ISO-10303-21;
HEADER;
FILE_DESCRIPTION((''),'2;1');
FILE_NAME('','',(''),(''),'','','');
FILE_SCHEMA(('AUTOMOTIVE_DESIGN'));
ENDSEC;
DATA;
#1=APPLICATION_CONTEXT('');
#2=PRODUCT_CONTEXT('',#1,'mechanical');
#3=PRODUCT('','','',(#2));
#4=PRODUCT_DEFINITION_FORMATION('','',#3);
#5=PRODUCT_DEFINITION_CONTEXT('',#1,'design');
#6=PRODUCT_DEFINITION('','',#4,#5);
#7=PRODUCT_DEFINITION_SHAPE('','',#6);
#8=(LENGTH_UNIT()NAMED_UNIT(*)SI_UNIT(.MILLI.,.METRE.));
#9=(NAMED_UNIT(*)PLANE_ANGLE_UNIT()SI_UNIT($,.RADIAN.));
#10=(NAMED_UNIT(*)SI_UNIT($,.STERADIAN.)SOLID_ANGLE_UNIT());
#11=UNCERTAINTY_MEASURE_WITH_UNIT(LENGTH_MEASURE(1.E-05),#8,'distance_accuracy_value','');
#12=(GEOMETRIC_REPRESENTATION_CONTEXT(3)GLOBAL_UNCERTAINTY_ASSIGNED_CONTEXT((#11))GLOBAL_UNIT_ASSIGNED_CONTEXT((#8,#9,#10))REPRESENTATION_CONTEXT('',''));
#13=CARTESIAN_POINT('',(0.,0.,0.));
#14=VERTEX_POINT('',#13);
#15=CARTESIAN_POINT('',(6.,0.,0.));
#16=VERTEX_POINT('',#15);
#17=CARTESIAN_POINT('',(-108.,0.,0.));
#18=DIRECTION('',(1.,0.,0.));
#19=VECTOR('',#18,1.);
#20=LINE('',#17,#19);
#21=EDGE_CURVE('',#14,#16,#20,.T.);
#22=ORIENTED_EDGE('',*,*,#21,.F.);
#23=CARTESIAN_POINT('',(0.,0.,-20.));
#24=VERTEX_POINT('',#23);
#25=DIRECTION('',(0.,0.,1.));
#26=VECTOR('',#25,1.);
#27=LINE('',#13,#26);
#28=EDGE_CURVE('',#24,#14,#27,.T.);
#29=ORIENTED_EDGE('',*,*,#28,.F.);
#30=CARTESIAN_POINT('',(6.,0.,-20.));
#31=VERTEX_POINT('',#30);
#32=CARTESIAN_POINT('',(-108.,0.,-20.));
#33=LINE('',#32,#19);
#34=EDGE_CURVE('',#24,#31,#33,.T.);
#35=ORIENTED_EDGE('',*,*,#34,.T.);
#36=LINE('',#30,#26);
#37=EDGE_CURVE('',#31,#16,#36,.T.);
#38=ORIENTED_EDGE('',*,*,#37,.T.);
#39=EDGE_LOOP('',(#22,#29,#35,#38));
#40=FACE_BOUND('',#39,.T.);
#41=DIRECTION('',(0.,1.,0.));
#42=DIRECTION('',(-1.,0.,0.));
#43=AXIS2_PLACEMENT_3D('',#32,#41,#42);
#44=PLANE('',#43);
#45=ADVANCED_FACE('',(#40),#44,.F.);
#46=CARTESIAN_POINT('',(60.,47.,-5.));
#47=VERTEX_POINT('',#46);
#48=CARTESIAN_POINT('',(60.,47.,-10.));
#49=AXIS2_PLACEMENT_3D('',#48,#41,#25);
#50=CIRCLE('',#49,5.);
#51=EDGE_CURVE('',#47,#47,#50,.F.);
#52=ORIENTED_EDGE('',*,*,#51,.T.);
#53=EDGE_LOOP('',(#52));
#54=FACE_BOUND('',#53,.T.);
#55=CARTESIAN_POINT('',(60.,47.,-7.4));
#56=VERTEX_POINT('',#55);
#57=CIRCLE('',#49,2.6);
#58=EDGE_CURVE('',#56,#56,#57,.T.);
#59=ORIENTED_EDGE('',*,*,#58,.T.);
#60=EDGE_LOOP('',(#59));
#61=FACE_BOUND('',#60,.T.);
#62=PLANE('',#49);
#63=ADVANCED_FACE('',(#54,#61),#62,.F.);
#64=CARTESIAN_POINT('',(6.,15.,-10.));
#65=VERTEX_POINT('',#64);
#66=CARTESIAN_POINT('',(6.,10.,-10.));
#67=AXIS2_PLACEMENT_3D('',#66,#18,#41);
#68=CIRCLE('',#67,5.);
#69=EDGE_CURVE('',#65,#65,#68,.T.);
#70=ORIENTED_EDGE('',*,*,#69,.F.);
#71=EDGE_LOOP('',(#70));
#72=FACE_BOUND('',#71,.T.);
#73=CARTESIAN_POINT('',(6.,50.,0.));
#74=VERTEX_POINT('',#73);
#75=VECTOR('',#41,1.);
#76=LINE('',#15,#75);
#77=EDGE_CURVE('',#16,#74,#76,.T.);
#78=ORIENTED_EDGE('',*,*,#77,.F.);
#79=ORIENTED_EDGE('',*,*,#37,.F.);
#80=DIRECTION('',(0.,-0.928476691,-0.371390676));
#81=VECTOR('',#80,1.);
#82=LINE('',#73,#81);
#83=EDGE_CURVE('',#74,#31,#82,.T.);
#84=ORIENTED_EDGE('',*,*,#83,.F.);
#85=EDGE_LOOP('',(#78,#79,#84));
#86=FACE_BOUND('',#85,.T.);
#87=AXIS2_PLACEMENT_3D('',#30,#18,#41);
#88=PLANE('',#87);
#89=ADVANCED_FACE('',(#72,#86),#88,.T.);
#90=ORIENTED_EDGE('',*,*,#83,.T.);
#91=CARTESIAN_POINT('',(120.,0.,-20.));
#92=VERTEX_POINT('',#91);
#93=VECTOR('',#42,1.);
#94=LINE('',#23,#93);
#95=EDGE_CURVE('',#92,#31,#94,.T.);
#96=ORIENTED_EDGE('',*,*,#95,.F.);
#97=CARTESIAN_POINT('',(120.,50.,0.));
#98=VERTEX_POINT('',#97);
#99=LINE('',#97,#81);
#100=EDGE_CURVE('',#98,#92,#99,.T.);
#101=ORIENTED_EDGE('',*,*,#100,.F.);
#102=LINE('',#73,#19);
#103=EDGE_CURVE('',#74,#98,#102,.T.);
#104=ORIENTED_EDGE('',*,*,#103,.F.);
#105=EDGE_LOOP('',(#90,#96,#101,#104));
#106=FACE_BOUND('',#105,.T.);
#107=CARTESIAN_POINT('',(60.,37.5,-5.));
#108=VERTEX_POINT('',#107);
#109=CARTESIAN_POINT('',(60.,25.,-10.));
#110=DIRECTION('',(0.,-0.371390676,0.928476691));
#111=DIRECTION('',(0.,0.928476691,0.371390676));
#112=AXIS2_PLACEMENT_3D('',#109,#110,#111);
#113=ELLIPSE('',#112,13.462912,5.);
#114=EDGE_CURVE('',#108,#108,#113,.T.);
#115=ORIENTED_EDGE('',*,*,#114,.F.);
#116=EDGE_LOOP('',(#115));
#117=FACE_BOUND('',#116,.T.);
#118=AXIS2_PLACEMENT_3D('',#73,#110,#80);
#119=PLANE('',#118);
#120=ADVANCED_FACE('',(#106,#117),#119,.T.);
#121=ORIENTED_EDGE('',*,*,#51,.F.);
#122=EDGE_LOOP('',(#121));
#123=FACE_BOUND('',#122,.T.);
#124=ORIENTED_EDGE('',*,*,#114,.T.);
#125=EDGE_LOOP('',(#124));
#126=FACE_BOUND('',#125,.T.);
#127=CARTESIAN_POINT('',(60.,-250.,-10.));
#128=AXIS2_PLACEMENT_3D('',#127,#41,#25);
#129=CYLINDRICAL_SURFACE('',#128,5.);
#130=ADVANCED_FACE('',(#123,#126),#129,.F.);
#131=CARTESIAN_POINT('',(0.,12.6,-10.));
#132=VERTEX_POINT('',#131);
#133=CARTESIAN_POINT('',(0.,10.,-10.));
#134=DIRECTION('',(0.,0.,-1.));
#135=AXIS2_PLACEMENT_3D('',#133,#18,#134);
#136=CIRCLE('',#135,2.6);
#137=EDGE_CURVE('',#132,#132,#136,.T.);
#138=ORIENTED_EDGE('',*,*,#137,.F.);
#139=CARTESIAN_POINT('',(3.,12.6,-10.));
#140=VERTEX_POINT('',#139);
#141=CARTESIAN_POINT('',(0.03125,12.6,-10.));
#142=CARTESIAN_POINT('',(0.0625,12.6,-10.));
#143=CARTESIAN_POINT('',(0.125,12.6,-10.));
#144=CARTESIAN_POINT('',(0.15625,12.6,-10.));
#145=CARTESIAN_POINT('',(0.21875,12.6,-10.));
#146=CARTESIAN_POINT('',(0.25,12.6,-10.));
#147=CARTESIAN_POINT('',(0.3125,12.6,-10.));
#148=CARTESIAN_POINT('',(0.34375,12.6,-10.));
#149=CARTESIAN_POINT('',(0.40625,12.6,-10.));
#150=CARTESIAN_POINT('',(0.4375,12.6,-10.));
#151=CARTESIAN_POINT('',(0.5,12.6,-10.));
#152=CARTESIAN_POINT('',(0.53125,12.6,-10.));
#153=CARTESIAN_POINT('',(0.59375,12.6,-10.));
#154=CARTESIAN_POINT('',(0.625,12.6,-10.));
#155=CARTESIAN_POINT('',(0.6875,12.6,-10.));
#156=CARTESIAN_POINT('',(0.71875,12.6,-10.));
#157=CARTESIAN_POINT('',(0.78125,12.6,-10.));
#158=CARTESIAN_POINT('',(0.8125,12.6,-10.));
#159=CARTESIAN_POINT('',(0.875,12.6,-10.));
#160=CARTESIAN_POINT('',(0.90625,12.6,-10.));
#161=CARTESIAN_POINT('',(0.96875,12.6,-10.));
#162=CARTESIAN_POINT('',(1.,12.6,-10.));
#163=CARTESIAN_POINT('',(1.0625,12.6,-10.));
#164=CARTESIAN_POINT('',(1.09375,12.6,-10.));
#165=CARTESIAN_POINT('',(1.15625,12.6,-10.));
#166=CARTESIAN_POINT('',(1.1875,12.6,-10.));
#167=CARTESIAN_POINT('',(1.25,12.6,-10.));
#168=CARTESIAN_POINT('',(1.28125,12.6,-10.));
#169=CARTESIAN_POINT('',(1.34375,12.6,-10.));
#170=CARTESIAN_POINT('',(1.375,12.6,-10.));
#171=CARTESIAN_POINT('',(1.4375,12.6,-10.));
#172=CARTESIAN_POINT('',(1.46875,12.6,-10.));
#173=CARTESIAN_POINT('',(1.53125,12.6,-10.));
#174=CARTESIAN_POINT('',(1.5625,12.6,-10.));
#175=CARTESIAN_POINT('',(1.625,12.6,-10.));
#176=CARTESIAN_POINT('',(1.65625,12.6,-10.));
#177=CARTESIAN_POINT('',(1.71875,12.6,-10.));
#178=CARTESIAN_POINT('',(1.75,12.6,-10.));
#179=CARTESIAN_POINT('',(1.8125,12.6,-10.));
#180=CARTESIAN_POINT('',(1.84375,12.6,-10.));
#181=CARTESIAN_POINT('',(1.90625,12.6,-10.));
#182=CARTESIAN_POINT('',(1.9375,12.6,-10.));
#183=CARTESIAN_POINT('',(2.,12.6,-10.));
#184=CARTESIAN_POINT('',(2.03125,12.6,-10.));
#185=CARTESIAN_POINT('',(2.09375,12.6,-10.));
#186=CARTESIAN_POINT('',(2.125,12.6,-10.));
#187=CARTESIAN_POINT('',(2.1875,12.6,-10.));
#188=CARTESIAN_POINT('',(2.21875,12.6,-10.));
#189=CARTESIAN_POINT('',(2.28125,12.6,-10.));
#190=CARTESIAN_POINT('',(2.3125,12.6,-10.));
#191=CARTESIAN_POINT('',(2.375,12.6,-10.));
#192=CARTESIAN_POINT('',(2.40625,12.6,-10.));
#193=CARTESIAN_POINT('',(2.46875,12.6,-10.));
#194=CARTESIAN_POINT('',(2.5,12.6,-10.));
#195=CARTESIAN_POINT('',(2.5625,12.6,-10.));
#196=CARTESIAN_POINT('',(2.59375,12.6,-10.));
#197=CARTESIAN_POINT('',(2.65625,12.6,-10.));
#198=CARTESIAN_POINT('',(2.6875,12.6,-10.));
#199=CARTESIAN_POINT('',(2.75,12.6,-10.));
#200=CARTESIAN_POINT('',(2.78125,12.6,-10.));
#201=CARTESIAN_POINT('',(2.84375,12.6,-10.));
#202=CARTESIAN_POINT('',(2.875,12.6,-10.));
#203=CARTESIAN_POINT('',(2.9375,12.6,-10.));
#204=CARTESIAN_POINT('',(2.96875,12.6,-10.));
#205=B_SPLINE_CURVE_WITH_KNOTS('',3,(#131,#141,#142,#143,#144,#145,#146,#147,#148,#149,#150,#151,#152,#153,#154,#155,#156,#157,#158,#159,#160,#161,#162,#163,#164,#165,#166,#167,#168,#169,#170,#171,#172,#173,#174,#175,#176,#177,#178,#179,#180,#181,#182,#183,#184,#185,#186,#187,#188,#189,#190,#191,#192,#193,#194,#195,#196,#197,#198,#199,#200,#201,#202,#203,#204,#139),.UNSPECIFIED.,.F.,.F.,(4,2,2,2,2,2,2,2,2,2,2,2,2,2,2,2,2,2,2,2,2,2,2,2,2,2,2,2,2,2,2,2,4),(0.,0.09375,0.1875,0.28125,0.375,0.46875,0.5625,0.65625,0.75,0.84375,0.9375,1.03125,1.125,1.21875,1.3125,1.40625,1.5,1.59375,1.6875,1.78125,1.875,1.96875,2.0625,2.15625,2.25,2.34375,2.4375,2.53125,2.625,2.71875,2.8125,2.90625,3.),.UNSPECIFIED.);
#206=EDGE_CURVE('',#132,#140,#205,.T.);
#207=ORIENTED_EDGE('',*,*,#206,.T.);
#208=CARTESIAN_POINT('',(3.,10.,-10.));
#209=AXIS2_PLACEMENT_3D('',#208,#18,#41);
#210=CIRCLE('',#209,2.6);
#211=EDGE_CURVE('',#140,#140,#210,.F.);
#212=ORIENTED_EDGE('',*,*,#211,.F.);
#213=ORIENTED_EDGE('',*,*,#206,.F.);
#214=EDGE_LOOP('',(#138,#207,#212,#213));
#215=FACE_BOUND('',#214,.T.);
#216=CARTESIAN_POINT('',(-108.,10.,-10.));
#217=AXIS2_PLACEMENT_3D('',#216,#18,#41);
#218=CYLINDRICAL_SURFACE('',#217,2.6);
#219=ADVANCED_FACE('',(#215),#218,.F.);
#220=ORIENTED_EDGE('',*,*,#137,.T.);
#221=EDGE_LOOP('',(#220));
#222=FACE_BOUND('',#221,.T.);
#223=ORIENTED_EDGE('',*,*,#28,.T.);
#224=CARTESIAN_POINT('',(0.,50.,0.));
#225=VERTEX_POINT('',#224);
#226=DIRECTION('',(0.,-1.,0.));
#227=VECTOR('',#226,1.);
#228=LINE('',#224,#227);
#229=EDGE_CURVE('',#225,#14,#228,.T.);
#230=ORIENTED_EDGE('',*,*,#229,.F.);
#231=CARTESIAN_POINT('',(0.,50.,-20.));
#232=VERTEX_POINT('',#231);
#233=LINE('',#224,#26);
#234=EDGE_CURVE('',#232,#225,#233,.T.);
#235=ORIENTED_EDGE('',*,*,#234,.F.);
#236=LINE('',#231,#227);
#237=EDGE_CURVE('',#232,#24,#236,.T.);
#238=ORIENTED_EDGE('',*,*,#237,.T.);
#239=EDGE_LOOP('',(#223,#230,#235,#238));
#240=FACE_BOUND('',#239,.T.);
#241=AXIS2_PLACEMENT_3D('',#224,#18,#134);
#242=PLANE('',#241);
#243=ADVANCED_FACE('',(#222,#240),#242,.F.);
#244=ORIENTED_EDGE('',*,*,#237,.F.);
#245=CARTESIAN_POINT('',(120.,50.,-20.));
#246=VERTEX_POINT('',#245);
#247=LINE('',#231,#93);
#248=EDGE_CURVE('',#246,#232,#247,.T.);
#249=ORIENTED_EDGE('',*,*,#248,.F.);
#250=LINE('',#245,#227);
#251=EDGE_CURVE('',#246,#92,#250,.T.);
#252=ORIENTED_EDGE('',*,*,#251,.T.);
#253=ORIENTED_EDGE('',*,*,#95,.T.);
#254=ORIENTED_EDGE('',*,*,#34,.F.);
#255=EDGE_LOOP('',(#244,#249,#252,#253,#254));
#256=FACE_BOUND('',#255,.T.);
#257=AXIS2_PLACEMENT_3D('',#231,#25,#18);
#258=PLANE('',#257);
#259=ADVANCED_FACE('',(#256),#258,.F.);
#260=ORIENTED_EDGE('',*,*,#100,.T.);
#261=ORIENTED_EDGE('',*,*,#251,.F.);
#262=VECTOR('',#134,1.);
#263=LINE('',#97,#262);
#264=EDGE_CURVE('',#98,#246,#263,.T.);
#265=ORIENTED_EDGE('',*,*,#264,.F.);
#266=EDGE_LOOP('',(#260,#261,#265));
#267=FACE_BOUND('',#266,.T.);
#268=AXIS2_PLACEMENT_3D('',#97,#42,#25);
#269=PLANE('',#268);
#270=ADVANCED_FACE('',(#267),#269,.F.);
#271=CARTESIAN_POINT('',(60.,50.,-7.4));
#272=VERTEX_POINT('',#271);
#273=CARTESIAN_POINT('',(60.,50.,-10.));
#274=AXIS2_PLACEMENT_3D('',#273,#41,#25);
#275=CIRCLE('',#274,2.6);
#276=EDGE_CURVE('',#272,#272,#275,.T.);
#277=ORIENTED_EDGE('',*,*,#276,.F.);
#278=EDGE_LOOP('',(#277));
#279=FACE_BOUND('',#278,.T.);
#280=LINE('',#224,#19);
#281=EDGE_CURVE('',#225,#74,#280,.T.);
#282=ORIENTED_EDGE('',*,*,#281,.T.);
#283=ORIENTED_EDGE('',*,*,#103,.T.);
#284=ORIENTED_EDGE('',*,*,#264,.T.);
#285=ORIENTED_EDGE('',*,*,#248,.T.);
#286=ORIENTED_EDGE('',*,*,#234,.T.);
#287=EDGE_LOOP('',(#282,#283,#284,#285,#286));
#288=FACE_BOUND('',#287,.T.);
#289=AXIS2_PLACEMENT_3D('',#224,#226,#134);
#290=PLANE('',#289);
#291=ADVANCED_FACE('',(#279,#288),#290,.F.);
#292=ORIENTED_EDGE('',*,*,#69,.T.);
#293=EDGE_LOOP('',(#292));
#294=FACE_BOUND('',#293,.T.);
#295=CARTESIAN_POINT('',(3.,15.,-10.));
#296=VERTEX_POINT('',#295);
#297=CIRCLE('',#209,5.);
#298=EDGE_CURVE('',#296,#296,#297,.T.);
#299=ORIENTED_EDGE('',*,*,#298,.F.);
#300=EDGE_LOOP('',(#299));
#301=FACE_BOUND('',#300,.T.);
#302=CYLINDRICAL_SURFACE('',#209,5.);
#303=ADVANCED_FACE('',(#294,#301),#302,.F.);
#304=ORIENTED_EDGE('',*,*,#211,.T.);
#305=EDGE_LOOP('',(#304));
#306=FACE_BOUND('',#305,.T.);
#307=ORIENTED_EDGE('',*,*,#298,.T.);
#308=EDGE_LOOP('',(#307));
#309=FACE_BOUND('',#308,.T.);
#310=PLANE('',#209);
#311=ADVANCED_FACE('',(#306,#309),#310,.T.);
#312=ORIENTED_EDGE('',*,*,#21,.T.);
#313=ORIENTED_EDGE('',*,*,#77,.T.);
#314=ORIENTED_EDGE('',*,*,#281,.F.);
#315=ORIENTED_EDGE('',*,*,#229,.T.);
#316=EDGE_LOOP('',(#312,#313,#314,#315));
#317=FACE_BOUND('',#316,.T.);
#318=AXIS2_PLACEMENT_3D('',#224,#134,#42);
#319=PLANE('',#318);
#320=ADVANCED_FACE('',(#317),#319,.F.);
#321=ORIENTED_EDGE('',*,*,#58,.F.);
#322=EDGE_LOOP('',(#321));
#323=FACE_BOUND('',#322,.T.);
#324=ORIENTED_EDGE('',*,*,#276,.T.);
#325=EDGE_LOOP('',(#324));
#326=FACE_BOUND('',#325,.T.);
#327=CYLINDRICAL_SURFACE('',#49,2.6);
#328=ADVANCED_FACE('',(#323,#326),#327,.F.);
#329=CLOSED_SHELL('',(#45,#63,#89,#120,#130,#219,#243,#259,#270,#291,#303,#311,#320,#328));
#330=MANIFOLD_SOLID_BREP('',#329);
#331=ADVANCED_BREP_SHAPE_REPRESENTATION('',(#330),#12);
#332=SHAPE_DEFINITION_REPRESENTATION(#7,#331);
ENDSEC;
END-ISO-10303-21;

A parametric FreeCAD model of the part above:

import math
import FreeCAD as App
import Part
import Sketcher
from FreeCAD import Vector

doc = App.newDocument("Part")
body = doc.addObject("PartDesign::Body", "Body")

# Sketch on XZ plane
sketch1 = doc.addObject("Sketcher::SketchObject", "Sketch")
body.addObject(sketch1)
sketch1.AttachmentSupport = (doc.XZ_Plane, [""])
sketch1.MapMode = "FlatFace"
sketch1.addGeometry([
    Part.LineSegment(Vector(0, -20, 0), Vector(0, 0, 0)),
    Part.LineSegment(Vector(0, 0, 0), Vector(120, 0, 0)),
    Part.LineSegment(Vector(120, 0, 0), Vector(120, -20, 0)),
    Part.LineSegment(Vector(120, -20, 0), Vector(0, -20, 0)),
], False)
sketch1.addConstraint([
    Sketcher.Constraint("Coincident", 0, 2, 1, 1),
    Sketcher.Constraint("Coincident", 1, 2, 2, 1),
    Sketcher.Constraint("Coincident", 2, 2, 3, 1),
    Sketcher.Constraint("Coincident", 3, 2, 0, 1),
    Sketcher.Constraint("Vertical", 0),
    Sketcher.Constraint("Horizontal", 1),
    Sketcher.Constraint("Vertical", 2),
    Sketcher.Constraint("Horizontal", 3),
    Sketcher.Constraint("Coincident", 0, 2, -1, 1),
    Sketcher.Constraint("DistanceX", 1, 1, 1, 2, 120.0),
    Sketcher.Constraint("DistanceY", 0, 1, 0, 2, 20.0),
])
pad1 = doc.addObject("PartDesign::Pad", "Pad")
body.addObject(pad1)
pad1.Profile = sketch1
pad1.Length = 50
pad1.Reversed = True

# Sketch on XY plane
sketch2 = doc.addObject("Sketcher::SketchObject", "Sketch001")
body.addObject(sketch2)
sketch2.AttachmentSupport = (doc.XY_Plane, [""])
sketch2.MapMode = "FlatFace"
sketch2.addGeometry([
    Part.LineSegment(Vector(0, 0, 0), Vector(0, -20, 0)),
    Part.LineSegment(Vector(0, -20, 0), Vector(6, -20, 0)),
    Part.LineSegment(Vector(6, -20, 0), Vector(6, 0, 0)),
    Part.LineSegment(Vector(6, 0, 0), Vector(0, 0, 0)),
], False)
sketch2.addConstraint([
    Sketcher.Constraint("Coincident", 0, 2, 1, 1),
    Sketcher.Constraint("Coincident", 1, 2, 2, 1),
    Sketcher.Constraint("Coincident", 2, 2, 3, 1),
    Sketcher.Constraint("Coincident", 3, 2, 0, 1),
    Sketcher.Constraint("Vertical", 0),
    Sketcher.Constraint("Horizontal", 1),
    Sketcher.Constraint("Vertical", 2),
    Sketcher.Constraint("Horizontal", 3),
    Sketcher.Constraint("Coincident", 3, 2, -1, 1),
    Sketcher.Constraint("DistanceX", 1, 1, 1, 2, 6.0),
    Sketcher.Constraint("DistanceY", 0, 2, 0, 1, 20.0),
])
pad2 = doc.addObject("PartDesign::Pad", "Pad001")
body.addObject(pad2)
pad2.Profile = sketch2
pad2.Length = 20
pad2.Reversed = True

# Sketch on YZ plane
sketch3 = doc.addObject("Sketcher::SketchObject", "Sketch002")
body.addObject(sketch3)
sketch3.AttachmentSupport = (doc.YZ_Plane, [""])
sketch3.MapMode = "FlatFace"
sketch3.AttachmentOffset = App.Placement(Vector(0, 0, 120), App.Rotation())
sketch3.addGeometry([
    Part.LineSegment(Vector(0, -20, 0), Vector(50, 0, 0)),
    Part.LineSegment(Vector(50, 0, 0), Vector(0, 0, 0)),
    Part.LineSegment(Vector(0, 0, 0), Vector(0, -20, 0)),
], False)
sketch3.addConstraint([
    Sketcher.Constraint("Coincident", 0, 2, 1, 1),
    Sketcher.Constraint("Coincident", 1, 2, 2, 1),
    Sketcher.Constraint("Coincident", 2, 2, 0, 1),
    Sketcher.Constraint("Horizontal", 1),
    Sketcher.Constraint("Vertical", 2),
    Sketcher.Constraint("Coincident", 1, 2, -1, 1),
    Sketcher.Constraint("DistanceX", 1, 2, 1, 1, 50.0),
    Sketcher.Constraint("DistanceY", 2, 2, 2, 1, 20.0),
])
pocket1 = doc.addObject("PartDesign::Pocket", "Pocket")
body.addObject(pocket1)
pocket1.Profile = sketch3
pocket1.Length = 114

# Sketch on YZ plane
sketch4 = doc.addObject("Sketcher::SketchObject", "Sketch003")
body.addObject(sketch4)
sketch4.AttachmentSupport = (doc.YZ_Plane, [""])
sketch4.MapMode = "FlatFace"
sketch4.AttachmentOffset = App.Placement(Vector(0, 0, 6), App.Rotation())
sketch4.addGeometry([
    Part.Circle(Vector(10, -10, 0), Vector(0, 0, 1), 2.6),  # 0
    Part.LineSegment(Vector(0, 0, 0), Vector(-20, 0, 0)),  # 1
    Part.LineSegment(Vector(-20, 0, 0), Vector(-20, -20, 0)),  # 2
    Part.LineSegment(Vector(-20, -20, 0), Vector(0, -20, 0)),  # 3
    Part.LineSegment(Vector(0, -20, 0), Vector(0, 0, 0)),  # 4
], False)
sketch4.addConstraint([
    Sketcher.Constraint("Coincident", 1, 2, 2, 1),
    Sketcher.Constraint("Coincident", 2, 2, 3, 1),
    Sketcher.Constraint("Coincident", 3, 2, 4, 1),
    Sketcher.Constraint("Coincident", 4, 2, 1, 1),
    Sketcher.Constraint("Horizontal", 1),
    Sketcher.Constraint("Vertical", 2),
    Sketcher.Constraint("Horizontal", 3),
    Sketcher.Constraint("Vertical", 4),
    Sketcher.Constraint("Coincident", 4, 2, -1, 1),
    Sketcher.Constraint("Equal", 3, 2),
    Sketcher.Constraint("Diameter", 0, 5.2),
    Sketcher.Constraint("DistanceX", 1, 2, 1, 1, 20.0),
    Sketcher.Constraint("DistanceX", -1, 1, 0, 3, 10.0),
    Sketcher.Constraint("DistanceY", 0, 3, -1, 1, 10.0),
])
pocket2 = doc.addObject("PartDesign::Pocket", "Pocket001")
body.addObject(pocket2)
pocket2.Profile = sketch4
pocket2.Length = 114

# Sketch on YZ plane
sketch5 = doc.addObject("Sketcher::SketchObject", "Sketch004")
body.addObject(sketch5)
sketch5.AttachmentSupport = (doc.YZ_Plane, [""])
sketch5.MapMode = "FlatFace"
sketch5.AttachmentOffset = App.Placement(Vector(0, 0, 6), App.Rotation())
sketch5.addGeometry(Part.Circle(Vector(10, -10, 0), Vector(0, 0, 1), 5), False)
sketch5.addConstraint([
    Sketcher.Constraint("Diameter", 0, 10.0),
    Sketcher.Constraint("DistanceX", -1, 1, 0, 3, 10.0),
    Sketcher.Constraint("DistanceY", 0, 3, -1, 1, 10.0),
])
pocket3 = doc.addObject("PartDesign::Pocket", "Pocket002")
body.addObject(pocket3)
pocket3.Profile = sketch5
pocket3.Length = 3

# Sketch on XZ plane
sketch6 = doc.addObject("Sketcher::SketchObject", "Sketch005")
body.addObject(sketch6)
sketch6.AttachmentSupport = (doc.XZ_Plane, [""])
sketch6.MapMode = "FlatFace"
sketch6.AttachmentOffset = App.Placement(Vector(0, 0, -50), App.Rotation())
sketch6.addGeometry([
    Part.ArcOfCircle(Part.Circle(Vector(60, -10, 0), Vector(0, 0, 1), 2.6), math.radians(-90), math.radians(0)),
    Part.ArcOfCircle(Part.Circle(Vector(60, -10, 0), Vector(0, 0, 1), 2.6), math.radians(90), math.radians(270)),
    Part.ArcOfCircle(Part.Circle(Vector(60, -10, 0), Vector(0, 0, 1), 2.6), math.radians(0), math.radians(90)),
], False)
sketch6.addConstraint([
    Sketcher.Constraint("Tangent", 0, 1, 1, 2),
    Sketcher.Constraint("Tangent", 1, 1, 2, 2),
    Sketcher.Constraint("Tangent", 2, 1, 0, 2),
    Sketcher.Constraint("Horizontal", 1, 3, 2, 1),
    Sketcher.Constraint("Vertical", 2, 3, 0, 1),
    Sketcher.Constraint("Vertical", 0, 1, 1, 1),
    Sketcher.Constraint("Radius", 0, 2.6),
    Sketcher.Constraint("DistanceX", -1, 1, 0, 3, 60.0),
    Sketcher.Constraint("DistanceY", 0, 3, -1, 1, 10.0),
])
pocket4 = doc.addObject("PartDesign::Pocket", "Pocket003")
body.addObject(pocket4)
pocket4.Profile = sketch6
pocket4.Length = 300
pocket4.Reversed = True

# Sketch on XZ plane
sketch7 = doc.addObject("Sketcher::SketchObject", "Sketch006")
body.addObject(sketch7)
sketch7.AttachmentSupport = (doc.XZ_Plane, [""])
sketch7.MapMode = "FlatFace"
sketch7.AttachmentOffset = App.Placement(Vector(0, 0, -50), App.Rotation())
sketch7.addGeometry(Part.Circle(Vector(60, -10, 0), Vector(0, 0, 1), 5), False)
sketch7.addConstraint([
    Sketcher.Constraint("Diameter", 0, 10.0),
    Sketcher.Constraint("DistanceX", -1, 1, 0, 3, 60.0),
    Sketcher.Constraint("DistanceY", 0, 3, -1, 1, 10.0),
])
pocket5 = doc.addObject("PartDesign::Pocket", "Pocket004")
body.addObject(pocket5)
pocket5.Profile = sketch7
pocket5.Length = 300
pocket5.Reversed = True

# Sketch on XZ plane
sketch8 = doc.addObject("Sketcher::SketchObject", "Sketch007")
body.addObject(sketch8)
sketch8.AttachmentSupport = (doc.XZ_Plane, [""])
sketch8.MapMode = "FlatFace"
sketch8.AttachmentOffset = App.Placement(Vector(0, 0, -50), App.Rotation())
sketch8.addGeometry([
    Part.Circle(Vector(60, -10, 0), Vector(0, 0, 1), 5),
    Part.Circle(Vector(60, -10, 0), Vector(0, 0, 1), 2.6),
], False)
sketch8.addConstraint([
    Sketcher.Constraint("Coincident", 1, 3, 0, 3),
    Sketcher.Constraint("Diameter", 0, 10.0),
    Sketcher.Constraint("Diameter", 1, 5.2),
    Sketcher.Constraint("DistanceX", -1, 1, 0, 3, 60.0),
    Sketcher.Constraint("DistanceY", 0, 3, -1, 1, 10.0),
])
pad3 = doc.addObject("PartDesign::Pad", "Pad002")
body.addObject(pad3)
pad3.Profile = sketch8
pad3.Length = 3

doc.recompute()
